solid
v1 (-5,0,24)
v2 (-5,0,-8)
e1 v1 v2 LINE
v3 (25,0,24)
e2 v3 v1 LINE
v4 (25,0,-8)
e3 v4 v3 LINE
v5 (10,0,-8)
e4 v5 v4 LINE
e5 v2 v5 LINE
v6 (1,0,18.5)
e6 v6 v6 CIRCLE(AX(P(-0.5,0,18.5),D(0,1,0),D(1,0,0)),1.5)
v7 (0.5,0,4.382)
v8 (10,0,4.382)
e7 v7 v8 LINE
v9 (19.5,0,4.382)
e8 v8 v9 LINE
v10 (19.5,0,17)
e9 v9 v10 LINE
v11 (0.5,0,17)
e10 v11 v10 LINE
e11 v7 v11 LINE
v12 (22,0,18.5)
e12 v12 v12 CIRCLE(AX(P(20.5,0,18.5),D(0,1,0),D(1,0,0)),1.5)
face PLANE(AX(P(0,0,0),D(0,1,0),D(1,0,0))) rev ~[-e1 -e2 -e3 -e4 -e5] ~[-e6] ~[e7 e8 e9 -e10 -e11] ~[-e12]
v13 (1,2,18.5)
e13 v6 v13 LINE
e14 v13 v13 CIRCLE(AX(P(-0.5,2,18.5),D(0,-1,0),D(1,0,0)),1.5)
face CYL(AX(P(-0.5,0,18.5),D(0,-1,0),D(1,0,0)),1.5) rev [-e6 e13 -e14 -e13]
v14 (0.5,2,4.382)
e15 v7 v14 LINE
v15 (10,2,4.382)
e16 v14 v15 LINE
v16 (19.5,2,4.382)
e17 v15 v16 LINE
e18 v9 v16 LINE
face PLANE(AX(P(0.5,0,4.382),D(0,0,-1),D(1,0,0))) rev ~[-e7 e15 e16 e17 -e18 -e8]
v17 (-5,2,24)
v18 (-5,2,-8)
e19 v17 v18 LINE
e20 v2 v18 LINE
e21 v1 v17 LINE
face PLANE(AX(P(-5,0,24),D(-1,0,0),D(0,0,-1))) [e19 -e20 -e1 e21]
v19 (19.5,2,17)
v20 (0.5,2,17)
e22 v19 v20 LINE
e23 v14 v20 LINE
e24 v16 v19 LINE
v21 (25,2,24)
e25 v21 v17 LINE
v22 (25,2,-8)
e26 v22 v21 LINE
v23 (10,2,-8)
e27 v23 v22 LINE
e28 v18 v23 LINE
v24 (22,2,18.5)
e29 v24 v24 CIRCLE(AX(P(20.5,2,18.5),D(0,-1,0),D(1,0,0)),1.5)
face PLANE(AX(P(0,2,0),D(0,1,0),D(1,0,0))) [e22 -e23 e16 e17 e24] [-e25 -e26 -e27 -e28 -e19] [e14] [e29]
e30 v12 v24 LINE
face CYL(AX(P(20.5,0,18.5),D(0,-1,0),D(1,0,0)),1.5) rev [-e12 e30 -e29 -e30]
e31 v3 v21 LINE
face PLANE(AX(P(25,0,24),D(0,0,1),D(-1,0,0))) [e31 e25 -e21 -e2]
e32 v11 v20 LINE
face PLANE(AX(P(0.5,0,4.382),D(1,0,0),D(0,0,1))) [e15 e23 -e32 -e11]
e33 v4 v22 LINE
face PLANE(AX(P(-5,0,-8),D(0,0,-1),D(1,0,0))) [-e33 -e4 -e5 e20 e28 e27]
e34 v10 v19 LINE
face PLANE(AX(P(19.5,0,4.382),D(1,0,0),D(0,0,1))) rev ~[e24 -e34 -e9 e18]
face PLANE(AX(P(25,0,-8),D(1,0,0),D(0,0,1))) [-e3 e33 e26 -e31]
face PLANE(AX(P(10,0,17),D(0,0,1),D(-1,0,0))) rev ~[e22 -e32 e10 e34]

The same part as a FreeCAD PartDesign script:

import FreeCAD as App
import Part
import Sketcher

doc = App.newDocument("Part")
body = doc.addObject("PartDesign::Body", "Body")

# Sketch on XZ plane
sketch1 = body.newObject("Sketcher::SketchObject", "Sketch")
sketch1.AttachmentSupport = (doc.getObject("XZ_Plane"), [""])
sketch1.MapMode = "FlatFace"
sketch1.addGeometry([
    Part.LineSegment(App.Vector(10, -8, 0), App.Vector(-5, -8, 0)),  # 0
    Part.LineSegment(App.Vector(-5, -8, 0), App.Vector(-5, 24, 0)),  # 1
    Part.LineSegment(App.Vector(-5, 24, 0), App.Vector(25, 24, 0)),  # 2
    Part.LineSegment(App.Vector(25, 24, 0), App.Vector(25, -8, 0)),  # 3
    Part.LineSegment(App.Vector(25, -8, 0), App.Vector(10, -8, 0)),  # 4
    Part.LineSegment(App.Vector(0.5, 4.382, 0), App.Vector(10, 4.382, 0)),  # 5
    Part.LineSegment(App.Vector(10, 4.382, 0), App.Vector(19.5, 4.382, 0)),  # 6
    Part.LineSegment(App.Vector(19.5, 4.382, 0), App.Vector(19.5, 17, 0)),  # 7
    Part.LineSegment(App.Vector(19.5, 17, 0), App.Vector(0.5, 17, 0)),  # 8
    Part.LineSegment(App.Vector(0.5, 17, 0), App.Vector(0.5, 4.382, 0)),  # 9
    Part.Circle(App.Vector(-0.5, 18.5, 0), App.Vector(0, 0, 1), 1.5),  # 10
    Part.Circle(App.Vector(20.5, 18.5, 0), App.Vector(0, 0, 1), 1.5),  # 11
], False)
sketch1.addConstraint([
    Sketcher.Constraint("Coincident", 0, 2, 1, 1),
    Sketcher.Constraint("Coincident", 1, 2, 2, 1),
    Sketcher.Constraint("Coincident", 2, 2, 3, 1),
    Sketcher.Constraint("Coincident", 3, 2, 4, 1),
    Sketcher.Constraint("Coincident", 4, 2, 0, 1),
    Sketcher.Constraint("Coincident", 5, 2, 6, 1),
    Sketcher.Constraint("Coincident", 6, 2, 7, 1),
    Sketcher.Constraint("Coincident", 7, 2, 8, 1),
    Sketcher.Constraint("Coincident", 8, 2, 9, 1),
    Sketcher.Constraint("Coincident", 9, 2, 5, 1),
    Sketcher.Constraint("Horizontal", 0),
    Sketcher.Constraint("Vertical", 1),
    Sketcher.Constraint("Horizontal", 2),
    Sketcher.Constraint("Vertical", 3),
    Sketcher.Constraint("Horizontal", 4),
    Sketcher.Constraint("Horizontal", 5),
    Sketcher.Constraint("Horizontal", 6),
    Sketcher.Constraint("Vertical", 7),
    Sketcher.Constraint("Horizontal", 8),
    Sketcher.Constraint("Vertical", 9),
    Sketcher.Constraint("Equal", 10, 11),
    Sketcher.Constraint("Horizontal", 10, 3, 11, 3),
    Sketcher.Constraint("Vertical", 4, 2, 5, 2),
    Sketcher.Constraint("Equal", 0, 4),
    Sketcher.Constraint("Equal", 5, 6),
    Sketcher.Constraint("Diameter", 10, 3.0),
    Sketcher.Constraint("DistanceX", 0, 2, 0, 1, 15.0),
    Sketcher.Constraint("DistanceY", 1, 1, 1, 2, 32.0),
    Sketcher.Constraint("DistanceX", 5, 1, 5, 2, 9.5),
    Sketcher.Constraint("DistanceY", 0, 2, 10, 3, 26.5),
    Sketcher.Constraint("DistanceX", 10, 3, 4, 2, 10.5),
    Sketcher.Constraint("DistanceX", 4, 2, 11, 3, 10.5),
    Sketcher.Constraint("DistanceX", 0, 2, -1, 1, 5.0),
    Sketcher.Constraint("DistanceY", 0, 2, -1, 1, 8.0),
    Sketcher.Constraint("DistanceY", -1, 1, 7, 2, 17.0),
    Sketcher.Constraint("DistanceY", 7, 1, 7, 2, 12.618),
])
pad1 = body.newObject("PartDesign::Pad", "Pad")
pad1.Profile = sketch1
pad1.Length = 2
pad1.Reversed = True

doc.recompute()
